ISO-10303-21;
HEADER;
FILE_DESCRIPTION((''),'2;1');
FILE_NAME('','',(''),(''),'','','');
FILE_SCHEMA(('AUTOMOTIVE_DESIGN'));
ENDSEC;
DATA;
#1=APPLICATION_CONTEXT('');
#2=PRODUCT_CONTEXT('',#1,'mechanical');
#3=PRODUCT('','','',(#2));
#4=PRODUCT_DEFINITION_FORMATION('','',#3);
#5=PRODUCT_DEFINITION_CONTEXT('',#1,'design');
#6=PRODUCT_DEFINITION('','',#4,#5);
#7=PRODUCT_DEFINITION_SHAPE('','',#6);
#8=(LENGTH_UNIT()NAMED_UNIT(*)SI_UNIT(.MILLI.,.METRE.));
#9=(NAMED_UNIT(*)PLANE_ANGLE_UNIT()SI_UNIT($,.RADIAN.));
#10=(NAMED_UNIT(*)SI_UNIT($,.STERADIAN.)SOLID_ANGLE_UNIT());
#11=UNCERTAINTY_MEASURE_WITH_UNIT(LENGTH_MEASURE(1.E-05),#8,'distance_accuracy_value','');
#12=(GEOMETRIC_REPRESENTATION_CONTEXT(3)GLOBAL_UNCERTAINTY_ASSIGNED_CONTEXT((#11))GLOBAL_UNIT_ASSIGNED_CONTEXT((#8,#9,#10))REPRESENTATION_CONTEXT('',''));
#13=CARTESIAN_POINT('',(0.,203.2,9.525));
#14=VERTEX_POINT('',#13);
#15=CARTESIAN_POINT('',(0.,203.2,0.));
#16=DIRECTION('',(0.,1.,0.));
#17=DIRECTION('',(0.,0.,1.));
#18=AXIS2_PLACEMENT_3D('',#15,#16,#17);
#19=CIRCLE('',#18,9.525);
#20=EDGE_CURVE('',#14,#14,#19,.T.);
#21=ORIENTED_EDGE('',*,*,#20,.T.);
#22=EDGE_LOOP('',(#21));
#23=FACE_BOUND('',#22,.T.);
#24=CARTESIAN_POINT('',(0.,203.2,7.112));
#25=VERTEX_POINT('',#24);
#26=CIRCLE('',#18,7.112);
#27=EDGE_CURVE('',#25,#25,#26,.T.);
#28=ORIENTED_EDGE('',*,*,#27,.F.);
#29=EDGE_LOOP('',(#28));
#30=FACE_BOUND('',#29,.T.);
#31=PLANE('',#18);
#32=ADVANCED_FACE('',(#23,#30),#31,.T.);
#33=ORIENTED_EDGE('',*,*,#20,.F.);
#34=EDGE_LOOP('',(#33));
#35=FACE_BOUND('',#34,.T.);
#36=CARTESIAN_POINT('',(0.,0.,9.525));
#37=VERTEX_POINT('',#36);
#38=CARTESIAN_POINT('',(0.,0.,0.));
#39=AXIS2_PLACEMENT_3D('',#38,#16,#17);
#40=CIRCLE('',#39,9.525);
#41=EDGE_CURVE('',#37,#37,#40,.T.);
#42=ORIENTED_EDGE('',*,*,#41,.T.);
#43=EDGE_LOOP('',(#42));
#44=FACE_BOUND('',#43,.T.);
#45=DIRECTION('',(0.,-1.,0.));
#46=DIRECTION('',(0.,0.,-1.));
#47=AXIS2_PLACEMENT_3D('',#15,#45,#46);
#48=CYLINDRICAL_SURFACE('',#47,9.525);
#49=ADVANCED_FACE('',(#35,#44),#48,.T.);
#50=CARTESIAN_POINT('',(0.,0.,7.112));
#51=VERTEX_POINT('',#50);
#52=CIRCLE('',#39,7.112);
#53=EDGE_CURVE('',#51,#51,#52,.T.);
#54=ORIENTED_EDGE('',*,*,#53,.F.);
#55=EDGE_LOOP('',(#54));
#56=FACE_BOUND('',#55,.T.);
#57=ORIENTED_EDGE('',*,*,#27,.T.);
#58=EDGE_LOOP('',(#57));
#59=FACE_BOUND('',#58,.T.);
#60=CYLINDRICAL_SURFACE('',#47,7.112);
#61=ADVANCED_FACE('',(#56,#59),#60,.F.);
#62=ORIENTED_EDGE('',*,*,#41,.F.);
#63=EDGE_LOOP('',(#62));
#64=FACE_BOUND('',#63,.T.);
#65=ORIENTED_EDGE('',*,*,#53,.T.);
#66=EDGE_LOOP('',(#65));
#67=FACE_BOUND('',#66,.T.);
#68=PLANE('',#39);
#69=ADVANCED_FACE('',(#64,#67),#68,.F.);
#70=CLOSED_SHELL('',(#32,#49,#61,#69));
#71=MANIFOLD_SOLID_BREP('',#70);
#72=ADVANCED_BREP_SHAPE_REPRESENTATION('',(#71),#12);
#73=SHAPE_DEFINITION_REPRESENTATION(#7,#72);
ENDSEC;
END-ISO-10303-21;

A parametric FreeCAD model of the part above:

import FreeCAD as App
import Part
import Sketcher

V = App.Vector
Q = App.Units.Quantity

doc = App.newDocument("Part")
body = doc.addObject("PartDesign::Body", "Body")

# Sketch on XZ plane
sketch1 = body.newObject("Sketcher::SketchObject", "Sketch")
sketch1.AttachmentSupport = (doc.getObject("XZ_Plane"), [""])
sketch1.MapMode = "FlatFace"
sketch1.addGeometry([
    Part.Circle(V(0, 0, 0), V(0, 0, 1), 10),
    Part.Circle(V(0, 0, 0), V(0, 0, 1), 7),
], False)
sketch1.addConstraint([
    Sketcher.Constraint("Coincident", 0, 3, -1, 1),
    Sketcher.Constraint("Coincident", 1, 3, -1, 1),
    Sketcher.Constraint("Diameter", 0, Q("0.75 in")),
    Sketcher.Constraint("Diameter", 1, Q("0.56 in")),
])
pad1 = body.newObject("PartDesign::Pad", "Pad")
pad1.Profile = sketch1
pad1.Length = Q("8 in")
pad1.Reversed = True

doc.recompute()
